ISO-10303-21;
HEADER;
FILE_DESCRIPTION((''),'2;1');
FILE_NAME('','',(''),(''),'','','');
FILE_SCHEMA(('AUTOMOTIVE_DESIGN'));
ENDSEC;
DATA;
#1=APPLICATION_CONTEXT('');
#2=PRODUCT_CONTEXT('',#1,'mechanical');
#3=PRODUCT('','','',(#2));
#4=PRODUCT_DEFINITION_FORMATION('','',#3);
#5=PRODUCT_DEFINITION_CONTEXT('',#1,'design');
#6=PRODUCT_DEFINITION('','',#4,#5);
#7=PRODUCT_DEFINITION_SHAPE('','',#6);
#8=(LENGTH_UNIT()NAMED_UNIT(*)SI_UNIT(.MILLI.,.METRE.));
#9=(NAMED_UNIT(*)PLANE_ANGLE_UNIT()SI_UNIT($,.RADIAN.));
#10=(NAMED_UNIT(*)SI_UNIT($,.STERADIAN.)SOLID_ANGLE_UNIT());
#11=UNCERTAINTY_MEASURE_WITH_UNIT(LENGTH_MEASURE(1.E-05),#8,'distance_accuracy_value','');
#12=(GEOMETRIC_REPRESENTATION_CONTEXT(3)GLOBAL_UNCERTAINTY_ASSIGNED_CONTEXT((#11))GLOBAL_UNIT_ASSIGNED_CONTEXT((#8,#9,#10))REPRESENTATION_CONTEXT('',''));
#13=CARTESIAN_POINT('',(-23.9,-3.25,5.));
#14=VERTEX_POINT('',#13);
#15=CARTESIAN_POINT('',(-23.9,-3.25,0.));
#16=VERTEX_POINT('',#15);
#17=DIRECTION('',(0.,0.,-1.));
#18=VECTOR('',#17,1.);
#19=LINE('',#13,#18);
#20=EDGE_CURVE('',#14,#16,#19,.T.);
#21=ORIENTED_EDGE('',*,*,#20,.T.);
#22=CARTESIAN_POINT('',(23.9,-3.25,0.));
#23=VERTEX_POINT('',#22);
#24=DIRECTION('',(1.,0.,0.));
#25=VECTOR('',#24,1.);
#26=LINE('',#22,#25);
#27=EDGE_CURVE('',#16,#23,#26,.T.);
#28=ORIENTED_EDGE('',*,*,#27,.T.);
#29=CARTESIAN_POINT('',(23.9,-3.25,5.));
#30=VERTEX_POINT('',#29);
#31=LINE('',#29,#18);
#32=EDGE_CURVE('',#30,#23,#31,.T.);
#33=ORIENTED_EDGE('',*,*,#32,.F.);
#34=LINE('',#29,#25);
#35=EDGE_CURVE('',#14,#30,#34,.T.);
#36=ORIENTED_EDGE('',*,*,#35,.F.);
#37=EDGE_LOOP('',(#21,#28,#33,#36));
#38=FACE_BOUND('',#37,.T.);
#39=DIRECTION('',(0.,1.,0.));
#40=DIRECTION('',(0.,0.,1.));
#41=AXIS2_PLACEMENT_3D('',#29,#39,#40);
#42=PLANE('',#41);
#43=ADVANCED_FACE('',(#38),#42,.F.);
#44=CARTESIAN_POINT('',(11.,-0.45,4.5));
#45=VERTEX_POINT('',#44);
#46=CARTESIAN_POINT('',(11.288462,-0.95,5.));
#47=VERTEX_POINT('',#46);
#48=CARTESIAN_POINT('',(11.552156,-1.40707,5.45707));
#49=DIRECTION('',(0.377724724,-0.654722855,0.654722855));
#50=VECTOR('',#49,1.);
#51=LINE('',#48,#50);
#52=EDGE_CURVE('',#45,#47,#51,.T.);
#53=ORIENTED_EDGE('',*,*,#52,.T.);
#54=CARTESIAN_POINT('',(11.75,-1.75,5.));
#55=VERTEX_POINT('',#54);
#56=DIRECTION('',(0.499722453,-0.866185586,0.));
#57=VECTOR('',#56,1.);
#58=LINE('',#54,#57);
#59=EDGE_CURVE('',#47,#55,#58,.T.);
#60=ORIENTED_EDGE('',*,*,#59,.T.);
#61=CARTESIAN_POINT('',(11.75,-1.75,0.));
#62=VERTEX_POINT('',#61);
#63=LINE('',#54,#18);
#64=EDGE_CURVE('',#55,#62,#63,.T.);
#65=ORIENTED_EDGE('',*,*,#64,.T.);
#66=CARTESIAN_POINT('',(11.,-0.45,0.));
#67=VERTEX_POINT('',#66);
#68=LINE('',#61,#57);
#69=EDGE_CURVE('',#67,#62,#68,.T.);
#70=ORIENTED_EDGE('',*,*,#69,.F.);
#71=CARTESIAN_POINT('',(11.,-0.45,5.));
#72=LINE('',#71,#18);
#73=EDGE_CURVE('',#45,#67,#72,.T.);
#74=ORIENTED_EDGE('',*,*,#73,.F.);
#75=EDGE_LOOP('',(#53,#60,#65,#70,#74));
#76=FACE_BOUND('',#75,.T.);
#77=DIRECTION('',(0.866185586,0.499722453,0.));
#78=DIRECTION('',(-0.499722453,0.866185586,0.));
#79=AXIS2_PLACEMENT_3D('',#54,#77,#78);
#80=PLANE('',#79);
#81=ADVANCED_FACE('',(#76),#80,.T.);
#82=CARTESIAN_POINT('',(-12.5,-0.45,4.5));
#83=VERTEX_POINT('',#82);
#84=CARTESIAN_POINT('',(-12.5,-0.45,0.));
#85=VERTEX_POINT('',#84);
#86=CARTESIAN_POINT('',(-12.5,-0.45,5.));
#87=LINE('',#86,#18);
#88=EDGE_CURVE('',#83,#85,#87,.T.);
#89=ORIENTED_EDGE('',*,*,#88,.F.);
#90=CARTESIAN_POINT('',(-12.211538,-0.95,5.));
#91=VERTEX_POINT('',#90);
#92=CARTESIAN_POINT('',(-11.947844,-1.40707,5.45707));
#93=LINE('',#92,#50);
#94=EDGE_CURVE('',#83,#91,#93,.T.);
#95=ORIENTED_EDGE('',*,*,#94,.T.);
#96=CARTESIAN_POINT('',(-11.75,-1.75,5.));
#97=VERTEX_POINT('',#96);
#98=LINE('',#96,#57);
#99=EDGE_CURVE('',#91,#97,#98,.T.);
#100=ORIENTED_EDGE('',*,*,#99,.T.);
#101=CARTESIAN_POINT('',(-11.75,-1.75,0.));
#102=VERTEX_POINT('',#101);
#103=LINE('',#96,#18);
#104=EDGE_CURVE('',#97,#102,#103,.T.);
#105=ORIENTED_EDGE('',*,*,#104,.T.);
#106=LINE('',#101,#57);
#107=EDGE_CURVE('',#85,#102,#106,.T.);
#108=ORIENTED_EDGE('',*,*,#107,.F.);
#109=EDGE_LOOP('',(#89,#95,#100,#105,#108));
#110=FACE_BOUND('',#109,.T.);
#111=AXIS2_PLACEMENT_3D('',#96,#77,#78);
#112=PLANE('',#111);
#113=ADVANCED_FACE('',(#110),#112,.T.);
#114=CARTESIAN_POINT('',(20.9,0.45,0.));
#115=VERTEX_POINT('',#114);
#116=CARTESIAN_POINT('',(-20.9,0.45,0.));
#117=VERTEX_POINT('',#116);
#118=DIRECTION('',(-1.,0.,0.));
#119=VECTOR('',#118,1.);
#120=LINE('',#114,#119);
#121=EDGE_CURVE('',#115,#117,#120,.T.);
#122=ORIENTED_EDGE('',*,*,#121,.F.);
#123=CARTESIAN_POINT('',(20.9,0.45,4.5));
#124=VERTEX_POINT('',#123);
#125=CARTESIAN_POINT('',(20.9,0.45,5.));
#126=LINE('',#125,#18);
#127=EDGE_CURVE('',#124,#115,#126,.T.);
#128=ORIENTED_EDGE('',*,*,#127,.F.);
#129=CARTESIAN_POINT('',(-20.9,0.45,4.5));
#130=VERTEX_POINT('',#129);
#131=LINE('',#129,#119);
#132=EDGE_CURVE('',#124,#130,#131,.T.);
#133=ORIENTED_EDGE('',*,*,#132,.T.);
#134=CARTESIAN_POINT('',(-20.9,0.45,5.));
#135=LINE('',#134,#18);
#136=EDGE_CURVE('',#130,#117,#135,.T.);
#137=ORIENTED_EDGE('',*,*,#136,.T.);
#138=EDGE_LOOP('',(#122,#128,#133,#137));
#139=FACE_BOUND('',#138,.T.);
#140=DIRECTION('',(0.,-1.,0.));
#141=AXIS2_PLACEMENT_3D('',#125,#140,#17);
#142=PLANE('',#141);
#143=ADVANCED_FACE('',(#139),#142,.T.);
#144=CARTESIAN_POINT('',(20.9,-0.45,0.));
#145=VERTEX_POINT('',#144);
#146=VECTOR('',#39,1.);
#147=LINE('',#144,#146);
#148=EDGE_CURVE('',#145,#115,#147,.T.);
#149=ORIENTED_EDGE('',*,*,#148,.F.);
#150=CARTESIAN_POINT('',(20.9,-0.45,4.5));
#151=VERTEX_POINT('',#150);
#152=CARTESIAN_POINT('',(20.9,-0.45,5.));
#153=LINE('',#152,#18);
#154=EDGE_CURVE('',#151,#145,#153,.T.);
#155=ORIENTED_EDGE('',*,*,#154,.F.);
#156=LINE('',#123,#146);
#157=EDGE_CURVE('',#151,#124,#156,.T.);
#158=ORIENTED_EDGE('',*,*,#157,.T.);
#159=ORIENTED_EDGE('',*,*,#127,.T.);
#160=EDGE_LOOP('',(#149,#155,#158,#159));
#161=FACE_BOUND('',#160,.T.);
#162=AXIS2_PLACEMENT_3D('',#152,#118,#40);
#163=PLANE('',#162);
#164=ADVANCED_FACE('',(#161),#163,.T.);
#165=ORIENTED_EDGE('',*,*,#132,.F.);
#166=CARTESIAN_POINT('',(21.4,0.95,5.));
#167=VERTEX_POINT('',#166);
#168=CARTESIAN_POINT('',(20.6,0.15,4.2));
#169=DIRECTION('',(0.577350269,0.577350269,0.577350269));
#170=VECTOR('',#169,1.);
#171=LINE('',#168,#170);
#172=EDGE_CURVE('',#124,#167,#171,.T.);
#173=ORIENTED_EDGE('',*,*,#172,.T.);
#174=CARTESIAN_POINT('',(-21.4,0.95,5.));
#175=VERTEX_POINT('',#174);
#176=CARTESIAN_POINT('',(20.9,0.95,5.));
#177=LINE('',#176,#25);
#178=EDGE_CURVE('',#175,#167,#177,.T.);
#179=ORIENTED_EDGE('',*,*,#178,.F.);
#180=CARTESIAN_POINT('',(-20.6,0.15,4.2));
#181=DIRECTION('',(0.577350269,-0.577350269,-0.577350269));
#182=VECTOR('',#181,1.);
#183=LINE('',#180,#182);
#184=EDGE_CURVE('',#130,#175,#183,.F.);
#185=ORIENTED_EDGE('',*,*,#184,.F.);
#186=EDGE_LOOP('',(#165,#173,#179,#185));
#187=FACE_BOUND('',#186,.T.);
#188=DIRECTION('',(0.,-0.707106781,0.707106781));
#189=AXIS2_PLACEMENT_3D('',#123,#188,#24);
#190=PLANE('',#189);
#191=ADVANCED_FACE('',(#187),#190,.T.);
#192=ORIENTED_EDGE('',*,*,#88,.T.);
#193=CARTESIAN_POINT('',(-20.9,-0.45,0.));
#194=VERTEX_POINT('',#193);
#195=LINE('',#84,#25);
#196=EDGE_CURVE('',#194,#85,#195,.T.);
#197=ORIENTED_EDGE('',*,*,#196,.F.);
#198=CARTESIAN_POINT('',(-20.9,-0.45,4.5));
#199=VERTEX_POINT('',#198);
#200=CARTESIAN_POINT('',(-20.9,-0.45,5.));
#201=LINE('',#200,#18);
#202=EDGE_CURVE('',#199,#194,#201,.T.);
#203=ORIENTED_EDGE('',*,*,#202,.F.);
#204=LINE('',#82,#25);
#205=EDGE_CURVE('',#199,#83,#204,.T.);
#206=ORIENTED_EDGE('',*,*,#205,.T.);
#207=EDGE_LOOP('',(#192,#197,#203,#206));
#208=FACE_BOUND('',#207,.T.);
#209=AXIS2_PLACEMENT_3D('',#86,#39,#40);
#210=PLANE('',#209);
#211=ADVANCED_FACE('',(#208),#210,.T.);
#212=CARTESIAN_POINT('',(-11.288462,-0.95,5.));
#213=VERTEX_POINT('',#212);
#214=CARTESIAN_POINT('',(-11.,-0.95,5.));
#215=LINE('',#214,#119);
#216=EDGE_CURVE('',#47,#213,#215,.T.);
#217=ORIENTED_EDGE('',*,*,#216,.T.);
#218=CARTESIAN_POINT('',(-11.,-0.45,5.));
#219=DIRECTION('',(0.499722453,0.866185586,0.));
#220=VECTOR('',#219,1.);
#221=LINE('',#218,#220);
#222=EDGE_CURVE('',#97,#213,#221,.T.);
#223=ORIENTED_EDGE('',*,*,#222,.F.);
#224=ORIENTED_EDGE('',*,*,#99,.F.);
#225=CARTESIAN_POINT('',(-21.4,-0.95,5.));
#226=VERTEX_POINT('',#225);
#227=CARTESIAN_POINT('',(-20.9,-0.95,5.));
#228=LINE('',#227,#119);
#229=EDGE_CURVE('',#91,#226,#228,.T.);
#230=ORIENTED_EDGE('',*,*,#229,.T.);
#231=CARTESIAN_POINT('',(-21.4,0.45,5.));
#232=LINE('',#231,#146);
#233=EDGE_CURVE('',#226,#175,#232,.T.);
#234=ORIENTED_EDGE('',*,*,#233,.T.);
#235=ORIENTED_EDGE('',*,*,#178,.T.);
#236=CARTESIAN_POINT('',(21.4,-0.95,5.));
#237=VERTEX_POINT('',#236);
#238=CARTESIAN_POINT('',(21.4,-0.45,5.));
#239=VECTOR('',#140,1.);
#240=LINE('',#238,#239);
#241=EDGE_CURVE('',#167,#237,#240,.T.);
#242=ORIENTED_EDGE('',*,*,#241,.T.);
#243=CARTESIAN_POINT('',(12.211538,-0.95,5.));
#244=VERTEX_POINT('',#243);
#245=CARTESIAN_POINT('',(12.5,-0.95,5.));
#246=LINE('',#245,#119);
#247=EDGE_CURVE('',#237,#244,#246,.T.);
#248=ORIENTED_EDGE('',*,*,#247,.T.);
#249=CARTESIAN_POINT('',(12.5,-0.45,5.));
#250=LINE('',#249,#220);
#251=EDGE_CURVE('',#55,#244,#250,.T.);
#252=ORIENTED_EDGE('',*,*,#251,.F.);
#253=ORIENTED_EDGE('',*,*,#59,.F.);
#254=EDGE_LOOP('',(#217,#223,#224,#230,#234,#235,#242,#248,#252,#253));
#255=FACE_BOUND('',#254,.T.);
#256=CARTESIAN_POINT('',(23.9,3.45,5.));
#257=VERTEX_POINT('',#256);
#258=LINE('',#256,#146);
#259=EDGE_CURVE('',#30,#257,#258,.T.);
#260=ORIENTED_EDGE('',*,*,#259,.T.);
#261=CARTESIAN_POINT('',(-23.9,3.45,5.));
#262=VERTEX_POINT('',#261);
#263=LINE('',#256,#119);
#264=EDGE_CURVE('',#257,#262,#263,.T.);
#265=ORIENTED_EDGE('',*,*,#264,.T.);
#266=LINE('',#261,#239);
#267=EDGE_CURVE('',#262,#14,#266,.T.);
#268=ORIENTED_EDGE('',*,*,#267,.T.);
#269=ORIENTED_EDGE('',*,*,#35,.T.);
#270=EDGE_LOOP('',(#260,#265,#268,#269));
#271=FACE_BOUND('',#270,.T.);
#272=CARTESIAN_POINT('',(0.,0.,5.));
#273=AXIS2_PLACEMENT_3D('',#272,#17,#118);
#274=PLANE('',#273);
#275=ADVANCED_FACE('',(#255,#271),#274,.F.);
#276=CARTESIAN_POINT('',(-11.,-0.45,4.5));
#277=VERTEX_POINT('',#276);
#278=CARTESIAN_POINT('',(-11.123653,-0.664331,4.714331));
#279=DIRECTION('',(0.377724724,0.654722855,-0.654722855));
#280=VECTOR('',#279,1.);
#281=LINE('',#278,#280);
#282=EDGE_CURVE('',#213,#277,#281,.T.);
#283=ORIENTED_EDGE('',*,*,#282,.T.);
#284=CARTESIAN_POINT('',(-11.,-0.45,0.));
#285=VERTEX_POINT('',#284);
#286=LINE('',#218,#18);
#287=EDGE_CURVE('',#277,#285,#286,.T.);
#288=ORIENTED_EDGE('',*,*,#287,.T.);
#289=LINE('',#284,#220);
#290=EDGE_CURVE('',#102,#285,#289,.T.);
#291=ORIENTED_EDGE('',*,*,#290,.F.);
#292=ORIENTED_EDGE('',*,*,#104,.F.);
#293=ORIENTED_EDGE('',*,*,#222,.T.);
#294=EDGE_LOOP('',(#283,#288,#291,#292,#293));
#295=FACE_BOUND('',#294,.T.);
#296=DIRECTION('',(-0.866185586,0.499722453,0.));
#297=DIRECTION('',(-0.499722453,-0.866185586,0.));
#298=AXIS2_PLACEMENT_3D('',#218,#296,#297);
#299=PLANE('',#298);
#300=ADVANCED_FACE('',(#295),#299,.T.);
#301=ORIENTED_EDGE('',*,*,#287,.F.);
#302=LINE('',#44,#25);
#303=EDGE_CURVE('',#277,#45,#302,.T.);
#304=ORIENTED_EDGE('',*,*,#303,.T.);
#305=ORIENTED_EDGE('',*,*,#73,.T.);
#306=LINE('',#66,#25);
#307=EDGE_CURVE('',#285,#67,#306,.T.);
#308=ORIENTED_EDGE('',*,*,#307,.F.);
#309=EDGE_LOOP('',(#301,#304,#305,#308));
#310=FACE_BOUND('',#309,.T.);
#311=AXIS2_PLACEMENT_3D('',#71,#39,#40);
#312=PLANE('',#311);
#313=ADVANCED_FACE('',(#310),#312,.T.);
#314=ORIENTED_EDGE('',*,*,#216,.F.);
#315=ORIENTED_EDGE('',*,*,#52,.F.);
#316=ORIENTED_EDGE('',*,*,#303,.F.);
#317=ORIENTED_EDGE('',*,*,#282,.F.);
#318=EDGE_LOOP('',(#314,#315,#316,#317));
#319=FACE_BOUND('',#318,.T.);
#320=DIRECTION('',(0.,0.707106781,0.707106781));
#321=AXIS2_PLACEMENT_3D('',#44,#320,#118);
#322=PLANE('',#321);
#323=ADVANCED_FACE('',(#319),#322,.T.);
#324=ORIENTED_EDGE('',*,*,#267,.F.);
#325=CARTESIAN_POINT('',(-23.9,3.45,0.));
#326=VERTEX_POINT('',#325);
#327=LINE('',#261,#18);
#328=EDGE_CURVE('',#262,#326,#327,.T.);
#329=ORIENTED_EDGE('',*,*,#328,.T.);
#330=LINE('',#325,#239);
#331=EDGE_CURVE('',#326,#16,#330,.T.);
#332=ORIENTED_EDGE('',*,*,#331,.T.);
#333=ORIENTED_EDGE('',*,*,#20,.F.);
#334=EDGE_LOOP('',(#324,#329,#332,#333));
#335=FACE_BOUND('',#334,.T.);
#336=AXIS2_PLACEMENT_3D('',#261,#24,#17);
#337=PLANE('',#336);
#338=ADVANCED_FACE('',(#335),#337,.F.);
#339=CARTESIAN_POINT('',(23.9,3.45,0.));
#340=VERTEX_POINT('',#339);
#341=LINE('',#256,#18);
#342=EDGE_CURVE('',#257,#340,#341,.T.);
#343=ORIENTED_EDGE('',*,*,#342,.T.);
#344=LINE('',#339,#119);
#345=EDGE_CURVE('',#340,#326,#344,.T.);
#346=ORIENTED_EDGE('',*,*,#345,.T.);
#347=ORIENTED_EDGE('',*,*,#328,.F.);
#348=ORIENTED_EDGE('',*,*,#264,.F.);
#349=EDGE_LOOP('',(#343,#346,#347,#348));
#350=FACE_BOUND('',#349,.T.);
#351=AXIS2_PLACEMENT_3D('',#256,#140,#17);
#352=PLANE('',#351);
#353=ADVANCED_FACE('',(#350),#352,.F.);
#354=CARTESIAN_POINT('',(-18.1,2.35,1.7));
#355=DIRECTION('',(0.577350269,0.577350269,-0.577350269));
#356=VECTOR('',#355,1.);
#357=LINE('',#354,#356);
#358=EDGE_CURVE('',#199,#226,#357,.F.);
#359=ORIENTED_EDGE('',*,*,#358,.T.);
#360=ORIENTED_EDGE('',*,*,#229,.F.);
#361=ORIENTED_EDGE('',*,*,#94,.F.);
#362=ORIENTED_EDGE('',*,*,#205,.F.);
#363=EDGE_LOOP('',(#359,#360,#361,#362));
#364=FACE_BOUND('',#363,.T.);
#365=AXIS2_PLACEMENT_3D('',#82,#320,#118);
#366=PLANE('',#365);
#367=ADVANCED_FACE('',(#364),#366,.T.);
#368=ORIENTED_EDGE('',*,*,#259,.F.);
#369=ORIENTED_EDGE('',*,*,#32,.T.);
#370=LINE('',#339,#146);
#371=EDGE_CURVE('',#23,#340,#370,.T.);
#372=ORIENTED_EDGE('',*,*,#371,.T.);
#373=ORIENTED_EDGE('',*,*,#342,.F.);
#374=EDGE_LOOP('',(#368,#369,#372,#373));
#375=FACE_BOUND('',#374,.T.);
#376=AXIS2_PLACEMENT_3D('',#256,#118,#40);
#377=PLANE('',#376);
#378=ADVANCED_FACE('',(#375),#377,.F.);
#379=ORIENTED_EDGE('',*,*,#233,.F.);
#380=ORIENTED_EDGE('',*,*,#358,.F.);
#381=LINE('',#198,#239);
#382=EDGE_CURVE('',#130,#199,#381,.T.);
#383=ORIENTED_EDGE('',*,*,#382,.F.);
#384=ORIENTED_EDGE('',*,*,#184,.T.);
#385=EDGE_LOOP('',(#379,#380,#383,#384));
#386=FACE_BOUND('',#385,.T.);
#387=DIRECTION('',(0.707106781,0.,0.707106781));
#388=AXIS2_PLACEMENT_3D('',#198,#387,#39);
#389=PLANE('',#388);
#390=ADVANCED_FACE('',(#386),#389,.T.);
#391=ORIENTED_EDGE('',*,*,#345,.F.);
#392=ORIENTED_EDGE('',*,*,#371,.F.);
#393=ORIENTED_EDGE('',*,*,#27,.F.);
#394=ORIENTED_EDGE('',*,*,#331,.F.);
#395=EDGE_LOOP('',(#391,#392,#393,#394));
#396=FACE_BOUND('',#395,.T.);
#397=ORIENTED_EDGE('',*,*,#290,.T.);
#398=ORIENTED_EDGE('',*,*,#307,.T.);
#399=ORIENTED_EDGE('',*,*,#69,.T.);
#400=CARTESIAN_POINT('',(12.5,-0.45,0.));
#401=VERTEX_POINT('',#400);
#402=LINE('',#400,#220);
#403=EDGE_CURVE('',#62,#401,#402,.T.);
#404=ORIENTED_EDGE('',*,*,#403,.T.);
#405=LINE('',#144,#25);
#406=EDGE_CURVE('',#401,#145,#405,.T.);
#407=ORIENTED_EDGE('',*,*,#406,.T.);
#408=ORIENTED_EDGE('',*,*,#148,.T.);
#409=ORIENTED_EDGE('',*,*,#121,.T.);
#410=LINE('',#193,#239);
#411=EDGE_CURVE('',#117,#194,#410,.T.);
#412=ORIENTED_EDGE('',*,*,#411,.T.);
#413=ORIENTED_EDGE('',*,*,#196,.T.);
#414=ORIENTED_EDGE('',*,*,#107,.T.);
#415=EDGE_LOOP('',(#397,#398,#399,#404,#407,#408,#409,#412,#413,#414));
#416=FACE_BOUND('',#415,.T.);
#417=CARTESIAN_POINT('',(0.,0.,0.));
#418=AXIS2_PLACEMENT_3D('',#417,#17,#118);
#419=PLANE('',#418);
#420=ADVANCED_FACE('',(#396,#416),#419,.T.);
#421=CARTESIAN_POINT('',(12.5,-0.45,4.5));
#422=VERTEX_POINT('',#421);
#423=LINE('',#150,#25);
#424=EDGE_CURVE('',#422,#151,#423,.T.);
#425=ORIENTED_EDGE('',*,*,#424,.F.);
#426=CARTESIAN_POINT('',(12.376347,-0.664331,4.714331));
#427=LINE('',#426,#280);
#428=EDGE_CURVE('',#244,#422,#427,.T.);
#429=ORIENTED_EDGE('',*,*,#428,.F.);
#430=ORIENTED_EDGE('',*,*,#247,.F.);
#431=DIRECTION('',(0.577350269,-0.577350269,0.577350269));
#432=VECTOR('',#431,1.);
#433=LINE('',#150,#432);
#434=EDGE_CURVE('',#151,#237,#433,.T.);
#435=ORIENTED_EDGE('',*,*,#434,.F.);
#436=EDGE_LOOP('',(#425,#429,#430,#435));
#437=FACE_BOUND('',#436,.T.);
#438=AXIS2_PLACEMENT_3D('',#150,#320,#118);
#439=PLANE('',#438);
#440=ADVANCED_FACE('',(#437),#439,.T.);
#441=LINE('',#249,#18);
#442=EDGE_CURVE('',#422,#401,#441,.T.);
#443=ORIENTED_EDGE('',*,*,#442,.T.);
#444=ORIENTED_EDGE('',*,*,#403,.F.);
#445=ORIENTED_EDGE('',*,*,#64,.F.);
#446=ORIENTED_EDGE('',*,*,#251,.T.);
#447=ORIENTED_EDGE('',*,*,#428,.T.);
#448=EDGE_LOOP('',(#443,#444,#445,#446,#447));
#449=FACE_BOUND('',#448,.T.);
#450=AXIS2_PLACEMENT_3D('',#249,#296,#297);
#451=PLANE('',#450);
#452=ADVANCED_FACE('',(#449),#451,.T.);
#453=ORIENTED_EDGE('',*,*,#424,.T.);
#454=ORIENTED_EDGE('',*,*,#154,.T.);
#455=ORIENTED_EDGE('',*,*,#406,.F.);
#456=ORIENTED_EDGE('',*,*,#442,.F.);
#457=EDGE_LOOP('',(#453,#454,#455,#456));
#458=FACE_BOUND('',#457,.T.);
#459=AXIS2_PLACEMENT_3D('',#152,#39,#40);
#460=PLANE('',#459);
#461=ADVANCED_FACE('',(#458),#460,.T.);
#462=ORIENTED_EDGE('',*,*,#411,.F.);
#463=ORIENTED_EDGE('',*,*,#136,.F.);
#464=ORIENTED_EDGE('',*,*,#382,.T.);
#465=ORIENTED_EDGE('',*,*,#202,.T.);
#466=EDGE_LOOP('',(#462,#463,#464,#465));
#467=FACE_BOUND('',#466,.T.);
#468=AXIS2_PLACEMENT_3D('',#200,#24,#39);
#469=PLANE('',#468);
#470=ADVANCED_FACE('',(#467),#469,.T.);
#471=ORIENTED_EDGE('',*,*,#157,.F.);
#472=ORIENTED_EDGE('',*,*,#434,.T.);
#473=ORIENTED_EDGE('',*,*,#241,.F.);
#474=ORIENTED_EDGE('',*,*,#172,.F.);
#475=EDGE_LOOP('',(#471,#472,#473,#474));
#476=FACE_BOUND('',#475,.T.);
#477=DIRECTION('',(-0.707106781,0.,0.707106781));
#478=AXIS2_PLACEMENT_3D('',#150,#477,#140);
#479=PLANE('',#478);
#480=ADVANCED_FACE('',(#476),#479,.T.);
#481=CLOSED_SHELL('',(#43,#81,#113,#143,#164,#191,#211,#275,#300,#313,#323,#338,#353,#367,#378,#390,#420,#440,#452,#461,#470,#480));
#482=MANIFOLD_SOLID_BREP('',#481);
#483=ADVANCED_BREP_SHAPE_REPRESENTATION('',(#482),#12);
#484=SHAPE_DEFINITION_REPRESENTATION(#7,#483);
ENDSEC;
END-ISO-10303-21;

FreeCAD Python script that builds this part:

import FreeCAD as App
import Part
import Sketcher


def edges_at(feature, points):
    """Names of the edges that pass closest to the given points."""
    edges = feature.Shape.Edges
    near = lambda p: min(range(len(edges)), key=lambda i: edges[i].distToShape(Part.Vertex(*p))[0])
    return sorted({f"Edge{near(p) + 1}" for p in points})


def add_polygon(sketch, points):
    """Adds a closed chain of lines whose ends are joined by coincident constraints."""
    first, n = sketch.GeometryCount, len(points)
    for a, b in zip(points, points[1:] + points[:1]):
        sketch.addGeometry(Part.LineSegment(App.Vector(*a, 0), App.Vector(*b, 0)), False)
    for i in range(n):
        sketch.addConstraint(Sketcher.Constraint("Coincident", first + i, 2, first + (i + 1) % n, 1))

doc = App.newDocument("Part")
body = doc.addObject("PartDesign::Body", "Body")

# Sketch on XY plane
sketch1 = doc.addObject("Sketcher::SketchObject", "Sketch")
body.addObject(sketch1)
sketch1.AttachmentSupport = (doc.XY_Plane, [""])
sketch1.MapMode = "FlatFace"
add_polygon(sketch1, [(23.9, -3.2), (23.9, 3.5), (-23.9, 3.5), (-23.9, -3.2)])  # lines 0-3
add_polygon(sketch1, [(20.9, 0.5), (20.9, -0.5), (12.5, -0.5), (11.8, -1.8), (11, -0.5), (-11, -0.5), (-11.8, -1.8), (-12.5, -0.5), (-20.9, -0.5), (-20.9, 0.5)])  # lines 4-13
sketch1.addConstraint(Sketcher.Constraint("Vertical", 0))
sketch1.addConstraint(Sketcher.Constraint("Horizontal", 1))
sketch1.addConstraint(Sketcher.Constraint("Vertical", 2))
sketch1.addConstraint(Sketcher.Constraint("Horizontal", 3))
sketch1.addConstraint(Sketcher.Constraint("Vertical", 4))
sketch1.addConstraint(Sketcher.Constraint("Horizontal", 5))
sketch1.addConstraint(Sketcher.Constraint("Horizontal", 8))
sketch1.addConstraint(Sketcher.Constraint("Horizontal", 11))
sketch1.addConstraint(Sketcher.Constraint("Vertical", 12))
sketch1.addConstraint(Sketcher.Constraint("Horizontal", 13))
sketch1.addConstraint(Sketcher.Constraint("Symmetric", 4, 2, 12, 2, -1, 1))
sketch1.addConstraint(Sketcher.Constraint("Symmetric", 6, 2, 9, 2, -2))
sketch1.addConstraint(Sketcher.Constraint("Symmetric", 5, 2, 10, 2, -2))
sketch1.addConstraint(Sketcher.Constraint("Parallel", 6, 9))
sketch1.addConstraint(Sketcher.Constraint("Parallel", 7, 10))
sketch1.addConstraint(Sketcher.Constraint("Horizontal", 5, 2, 7, 2))
sketch1.addConstraint(Sketcher.Constraint("DistanceX", 8, 2, 8, 1, 22.0))
sketch1.addConstraint(Sketcher.Constraint("DistanceX", 1, 2, 1, 1, 47.8))
sketch1.addConstraint(Sketcher.Constraint("DistanceX", 5, 2, 5, 1, 8.4))
sketch1.addConstraint(Sketcher.Constraint("DistanceX", 13, 1, 13, 2, 41.8))
sketch1.addConstraint(Sketcher.Constraint("DistanceY", 0, 1, 0, 2, 6.7))
sketch1.addConstraint(Sketcher.Constraint("DistanceY", 4, 2, 4, 1, 0.9))
sketch1.addConstraint(Sketcher.Constraint("DistanceX", 4, 2, 3, 2, 3.0))
sketch1.addConstraint(Sketcher.Constraint("DistanceY", 12, 2, 1, 2, 3.0))
sketch1.addConstraint(Sketcher.Constraint("DistanceY", 6, 2, 5, 2, 1.3))
pad1 = doc.addObject("PartDesign::Pad", "Pad")
body.addObject(pad1)
pad1.Profile = sketch1
pad1.Length = 5
doc.recompute()

chamfer = doc.addObject("PartDesign::Chamfer", "Chamfer")
body.addObject(chamfer)
chamfer.Base = (pad1, edges_at(pad1, [
    (16.7, -0.45, 5),
    (20.9, 0, 5),
    (0, 0.45, 5),
    (-20.9, 0, 5),
    (-16.7, -0.45, 5),
    (0, -0.45, 5),
]))
chamfer.Size = 0.5

doc.recompute()
